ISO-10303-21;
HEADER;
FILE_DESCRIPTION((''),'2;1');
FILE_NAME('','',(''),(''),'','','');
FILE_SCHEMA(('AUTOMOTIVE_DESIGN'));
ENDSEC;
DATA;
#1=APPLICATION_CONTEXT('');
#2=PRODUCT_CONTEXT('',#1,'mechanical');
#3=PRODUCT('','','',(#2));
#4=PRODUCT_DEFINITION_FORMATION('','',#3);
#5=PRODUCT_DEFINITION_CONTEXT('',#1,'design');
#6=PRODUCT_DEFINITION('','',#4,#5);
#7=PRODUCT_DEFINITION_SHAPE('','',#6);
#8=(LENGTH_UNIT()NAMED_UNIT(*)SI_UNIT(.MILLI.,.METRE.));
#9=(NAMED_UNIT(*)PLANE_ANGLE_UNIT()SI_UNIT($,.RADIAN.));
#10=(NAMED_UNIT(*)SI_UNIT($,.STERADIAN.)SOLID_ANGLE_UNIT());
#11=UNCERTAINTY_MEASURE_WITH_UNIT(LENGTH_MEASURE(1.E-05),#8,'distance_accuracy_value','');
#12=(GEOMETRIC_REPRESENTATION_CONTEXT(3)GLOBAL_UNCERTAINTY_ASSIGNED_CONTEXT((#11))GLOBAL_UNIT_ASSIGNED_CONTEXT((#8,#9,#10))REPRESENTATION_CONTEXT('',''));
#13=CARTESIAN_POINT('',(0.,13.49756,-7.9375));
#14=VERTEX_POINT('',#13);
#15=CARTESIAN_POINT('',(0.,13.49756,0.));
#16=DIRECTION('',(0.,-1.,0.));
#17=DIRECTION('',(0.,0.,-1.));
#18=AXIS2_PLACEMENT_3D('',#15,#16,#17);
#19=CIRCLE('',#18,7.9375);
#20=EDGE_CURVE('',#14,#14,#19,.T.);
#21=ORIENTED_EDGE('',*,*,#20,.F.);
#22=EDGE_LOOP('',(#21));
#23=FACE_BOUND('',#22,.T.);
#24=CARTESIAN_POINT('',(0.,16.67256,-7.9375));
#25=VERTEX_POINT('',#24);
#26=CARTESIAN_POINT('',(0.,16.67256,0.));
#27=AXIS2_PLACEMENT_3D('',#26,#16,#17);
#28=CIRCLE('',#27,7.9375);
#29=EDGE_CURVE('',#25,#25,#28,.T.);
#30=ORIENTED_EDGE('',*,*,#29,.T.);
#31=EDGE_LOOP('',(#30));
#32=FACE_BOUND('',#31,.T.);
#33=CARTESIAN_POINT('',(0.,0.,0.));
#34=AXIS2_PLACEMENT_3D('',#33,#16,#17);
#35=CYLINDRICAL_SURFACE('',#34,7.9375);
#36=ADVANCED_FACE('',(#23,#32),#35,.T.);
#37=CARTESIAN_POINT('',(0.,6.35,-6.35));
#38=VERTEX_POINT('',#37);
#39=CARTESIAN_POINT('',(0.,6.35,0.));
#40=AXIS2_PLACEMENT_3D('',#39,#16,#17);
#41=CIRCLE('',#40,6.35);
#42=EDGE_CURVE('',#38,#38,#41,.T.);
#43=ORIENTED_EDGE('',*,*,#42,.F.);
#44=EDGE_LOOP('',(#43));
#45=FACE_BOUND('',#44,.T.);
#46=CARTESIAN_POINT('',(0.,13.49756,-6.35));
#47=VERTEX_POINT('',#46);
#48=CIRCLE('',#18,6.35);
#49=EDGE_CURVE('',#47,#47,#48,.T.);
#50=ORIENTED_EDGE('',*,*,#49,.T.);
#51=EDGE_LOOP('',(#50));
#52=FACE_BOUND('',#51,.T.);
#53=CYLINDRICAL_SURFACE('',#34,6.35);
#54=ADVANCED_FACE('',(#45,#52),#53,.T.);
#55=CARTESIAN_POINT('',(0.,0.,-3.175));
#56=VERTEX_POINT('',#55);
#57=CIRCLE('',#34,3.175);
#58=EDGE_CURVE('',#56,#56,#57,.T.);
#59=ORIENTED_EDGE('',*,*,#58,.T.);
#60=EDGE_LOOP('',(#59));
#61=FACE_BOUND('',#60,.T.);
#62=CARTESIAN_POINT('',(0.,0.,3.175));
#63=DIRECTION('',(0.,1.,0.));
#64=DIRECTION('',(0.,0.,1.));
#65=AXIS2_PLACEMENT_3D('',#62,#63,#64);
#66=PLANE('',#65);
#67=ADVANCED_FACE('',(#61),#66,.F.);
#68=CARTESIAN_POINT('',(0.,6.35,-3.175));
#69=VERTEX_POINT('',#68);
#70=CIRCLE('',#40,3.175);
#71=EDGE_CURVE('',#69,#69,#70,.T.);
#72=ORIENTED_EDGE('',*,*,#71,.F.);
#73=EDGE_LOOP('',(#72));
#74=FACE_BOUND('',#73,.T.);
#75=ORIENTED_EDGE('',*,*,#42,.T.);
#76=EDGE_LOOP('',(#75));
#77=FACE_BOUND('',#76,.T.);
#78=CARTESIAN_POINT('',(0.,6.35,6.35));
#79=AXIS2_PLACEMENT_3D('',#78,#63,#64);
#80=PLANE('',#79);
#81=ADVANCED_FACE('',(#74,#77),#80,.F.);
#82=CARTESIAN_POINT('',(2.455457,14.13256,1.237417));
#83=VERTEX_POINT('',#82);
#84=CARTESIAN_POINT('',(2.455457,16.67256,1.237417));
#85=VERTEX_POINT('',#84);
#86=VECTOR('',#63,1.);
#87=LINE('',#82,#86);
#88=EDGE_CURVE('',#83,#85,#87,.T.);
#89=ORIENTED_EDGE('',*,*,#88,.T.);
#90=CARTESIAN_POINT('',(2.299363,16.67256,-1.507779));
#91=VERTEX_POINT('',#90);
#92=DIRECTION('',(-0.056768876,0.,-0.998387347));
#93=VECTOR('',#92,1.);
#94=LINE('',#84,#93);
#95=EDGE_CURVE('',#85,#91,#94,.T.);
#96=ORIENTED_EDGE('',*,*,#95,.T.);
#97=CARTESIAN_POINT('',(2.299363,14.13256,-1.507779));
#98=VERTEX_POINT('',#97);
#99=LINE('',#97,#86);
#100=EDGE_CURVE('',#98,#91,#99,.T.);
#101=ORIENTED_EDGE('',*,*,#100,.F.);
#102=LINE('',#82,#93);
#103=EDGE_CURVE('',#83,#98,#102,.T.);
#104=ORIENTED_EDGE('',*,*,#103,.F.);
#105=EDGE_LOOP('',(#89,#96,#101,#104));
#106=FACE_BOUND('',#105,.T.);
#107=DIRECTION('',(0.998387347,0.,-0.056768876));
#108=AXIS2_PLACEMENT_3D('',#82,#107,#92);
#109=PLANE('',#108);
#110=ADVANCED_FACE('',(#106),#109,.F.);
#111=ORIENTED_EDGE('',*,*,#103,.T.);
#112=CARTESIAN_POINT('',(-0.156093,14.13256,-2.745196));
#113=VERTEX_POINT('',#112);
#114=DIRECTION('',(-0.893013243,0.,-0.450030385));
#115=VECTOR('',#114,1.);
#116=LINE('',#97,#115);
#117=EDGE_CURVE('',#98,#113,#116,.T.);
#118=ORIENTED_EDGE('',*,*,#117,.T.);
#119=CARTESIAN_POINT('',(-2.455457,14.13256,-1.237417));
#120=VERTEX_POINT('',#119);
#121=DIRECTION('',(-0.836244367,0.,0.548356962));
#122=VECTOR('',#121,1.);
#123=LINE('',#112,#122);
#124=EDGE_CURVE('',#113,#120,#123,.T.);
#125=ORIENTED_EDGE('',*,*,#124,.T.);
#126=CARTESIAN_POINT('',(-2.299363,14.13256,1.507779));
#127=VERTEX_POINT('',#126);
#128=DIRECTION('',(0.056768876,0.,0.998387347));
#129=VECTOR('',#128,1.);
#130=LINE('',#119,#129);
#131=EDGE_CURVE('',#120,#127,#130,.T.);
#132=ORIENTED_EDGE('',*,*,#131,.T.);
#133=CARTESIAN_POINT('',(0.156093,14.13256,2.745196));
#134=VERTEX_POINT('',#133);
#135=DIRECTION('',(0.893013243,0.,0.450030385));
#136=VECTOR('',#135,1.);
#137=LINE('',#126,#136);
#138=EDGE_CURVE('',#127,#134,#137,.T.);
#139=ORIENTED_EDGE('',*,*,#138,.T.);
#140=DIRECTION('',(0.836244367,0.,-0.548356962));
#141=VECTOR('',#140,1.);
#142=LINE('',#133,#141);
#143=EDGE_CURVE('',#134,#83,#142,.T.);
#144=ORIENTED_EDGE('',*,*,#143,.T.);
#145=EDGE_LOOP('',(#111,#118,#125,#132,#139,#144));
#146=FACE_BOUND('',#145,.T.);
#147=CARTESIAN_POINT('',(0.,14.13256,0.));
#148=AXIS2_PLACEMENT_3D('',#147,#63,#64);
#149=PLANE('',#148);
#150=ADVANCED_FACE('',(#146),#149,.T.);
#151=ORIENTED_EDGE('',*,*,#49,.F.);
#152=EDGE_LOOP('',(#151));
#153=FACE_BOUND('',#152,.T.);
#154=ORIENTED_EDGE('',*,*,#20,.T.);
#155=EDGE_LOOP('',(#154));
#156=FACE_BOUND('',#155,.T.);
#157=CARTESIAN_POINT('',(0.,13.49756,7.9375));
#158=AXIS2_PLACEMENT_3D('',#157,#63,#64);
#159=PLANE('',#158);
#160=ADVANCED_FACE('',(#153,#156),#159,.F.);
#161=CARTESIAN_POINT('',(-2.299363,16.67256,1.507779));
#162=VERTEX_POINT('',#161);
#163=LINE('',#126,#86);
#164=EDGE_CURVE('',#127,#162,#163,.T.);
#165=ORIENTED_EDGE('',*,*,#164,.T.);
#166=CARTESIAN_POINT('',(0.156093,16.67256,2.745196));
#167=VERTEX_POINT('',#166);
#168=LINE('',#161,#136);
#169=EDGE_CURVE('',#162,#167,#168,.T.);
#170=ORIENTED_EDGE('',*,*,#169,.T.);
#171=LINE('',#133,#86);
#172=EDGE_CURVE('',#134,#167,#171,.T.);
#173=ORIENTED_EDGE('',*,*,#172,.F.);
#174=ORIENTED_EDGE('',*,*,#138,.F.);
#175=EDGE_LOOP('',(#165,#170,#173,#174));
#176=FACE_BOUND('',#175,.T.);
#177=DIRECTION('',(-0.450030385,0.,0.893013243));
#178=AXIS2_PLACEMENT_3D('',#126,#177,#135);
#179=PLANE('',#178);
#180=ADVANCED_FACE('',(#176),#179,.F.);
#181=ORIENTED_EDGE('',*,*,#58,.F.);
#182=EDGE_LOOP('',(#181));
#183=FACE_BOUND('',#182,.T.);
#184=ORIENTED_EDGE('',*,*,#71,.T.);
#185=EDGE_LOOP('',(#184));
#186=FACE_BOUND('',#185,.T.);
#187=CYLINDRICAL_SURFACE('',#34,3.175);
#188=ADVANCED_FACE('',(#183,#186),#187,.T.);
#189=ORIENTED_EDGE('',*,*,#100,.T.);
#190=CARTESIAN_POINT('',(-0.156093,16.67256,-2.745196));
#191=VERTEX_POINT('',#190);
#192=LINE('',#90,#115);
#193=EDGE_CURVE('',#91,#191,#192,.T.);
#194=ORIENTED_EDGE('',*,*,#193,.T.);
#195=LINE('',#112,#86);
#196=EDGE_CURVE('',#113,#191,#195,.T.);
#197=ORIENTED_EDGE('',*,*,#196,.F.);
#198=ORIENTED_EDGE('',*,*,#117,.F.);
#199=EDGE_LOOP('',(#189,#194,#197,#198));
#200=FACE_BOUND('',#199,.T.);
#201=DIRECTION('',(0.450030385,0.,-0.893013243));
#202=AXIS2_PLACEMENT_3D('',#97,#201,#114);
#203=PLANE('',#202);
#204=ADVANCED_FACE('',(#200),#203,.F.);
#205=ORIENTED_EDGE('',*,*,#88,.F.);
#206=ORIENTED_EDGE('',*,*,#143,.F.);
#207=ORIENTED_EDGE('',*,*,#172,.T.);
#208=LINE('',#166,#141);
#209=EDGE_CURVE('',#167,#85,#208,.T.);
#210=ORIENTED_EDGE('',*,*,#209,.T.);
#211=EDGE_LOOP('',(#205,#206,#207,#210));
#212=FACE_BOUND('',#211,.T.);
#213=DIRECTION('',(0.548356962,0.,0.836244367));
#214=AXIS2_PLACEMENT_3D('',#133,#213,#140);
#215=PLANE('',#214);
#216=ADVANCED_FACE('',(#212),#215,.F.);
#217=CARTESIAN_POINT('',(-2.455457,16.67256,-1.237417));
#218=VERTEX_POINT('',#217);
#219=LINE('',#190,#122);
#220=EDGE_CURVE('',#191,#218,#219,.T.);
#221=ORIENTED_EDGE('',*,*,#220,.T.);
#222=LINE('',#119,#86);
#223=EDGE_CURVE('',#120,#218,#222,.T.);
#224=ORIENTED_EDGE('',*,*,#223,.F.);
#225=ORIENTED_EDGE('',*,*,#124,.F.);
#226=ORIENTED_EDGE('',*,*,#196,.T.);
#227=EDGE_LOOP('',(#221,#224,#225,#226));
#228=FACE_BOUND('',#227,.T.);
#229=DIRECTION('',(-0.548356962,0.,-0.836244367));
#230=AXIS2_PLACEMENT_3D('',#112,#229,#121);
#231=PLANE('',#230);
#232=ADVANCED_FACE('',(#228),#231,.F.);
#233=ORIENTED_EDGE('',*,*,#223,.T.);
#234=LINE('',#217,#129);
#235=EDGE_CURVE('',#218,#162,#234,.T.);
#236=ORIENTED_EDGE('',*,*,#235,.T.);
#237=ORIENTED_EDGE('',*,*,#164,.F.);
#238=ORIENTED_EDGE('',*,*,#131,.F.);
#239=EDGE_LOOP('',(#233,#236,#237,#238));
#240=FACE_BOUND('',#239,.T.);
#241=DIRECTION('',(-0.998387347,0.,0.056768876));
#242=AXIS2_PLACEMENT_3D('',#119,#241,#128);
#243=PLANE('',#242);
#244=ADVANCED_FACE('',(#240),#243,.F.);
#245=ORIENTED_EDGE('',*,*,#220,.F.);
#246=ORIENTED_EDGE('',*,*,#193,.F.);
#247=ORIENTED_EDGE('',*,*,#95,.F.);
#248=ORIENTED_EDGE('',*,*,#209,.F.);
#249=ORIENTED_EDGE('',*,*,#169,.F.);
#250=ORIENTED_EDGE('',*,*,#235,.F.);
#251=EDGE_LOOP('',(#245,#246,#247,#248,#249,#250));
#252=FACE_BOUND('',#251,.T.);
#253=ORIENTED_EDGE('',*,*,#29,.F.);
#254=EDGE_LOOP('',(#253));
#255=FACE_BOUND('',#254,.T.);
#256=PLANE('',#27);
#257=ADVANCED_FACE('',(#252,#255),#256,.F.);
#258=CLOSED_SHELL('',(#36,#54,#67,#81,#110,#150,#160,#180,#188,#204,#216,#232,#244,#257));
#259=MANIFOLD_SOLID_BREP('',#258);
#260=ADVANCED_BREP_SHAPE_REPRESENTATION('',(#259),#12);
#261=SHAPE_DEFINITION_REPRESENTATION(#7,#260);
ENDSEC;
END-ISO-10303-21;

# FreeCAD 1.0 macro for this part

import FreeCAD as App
import Part
import Sketcher

V = App.Vector
Q = App.Units.Quantity

doc = App.newDocument("Part")
body = doc.addObject("PartDesign::Body", "Body")

# Sketch on YZ plane
sketch1 = body.newObject("Sketcher::SketchObject", "Sketch")
sketch1.AttachmentSupport = (doc.getObject("YZ_Plane"), [""])
sketch1.MapMode = "FlatFace"
sketch1.addGeometry([
    Part.LineSegment(V(0, 0, 0), V(16.7, 0, 0)),  # 0
    Part.LineSegment(V(16.7, 0, 0), V(16.7, 7.9, 0)),  # 1
    Part.LineSegment(V(16.7, 7.9, 0), V(13.5, 7.9, 0)),  # 2
    Part.LineSegment(V(13.5, 7.9, 0), V(13.5, 6.3, 0)),  # 3
    Part.LineSegment(V(13.5, 6.3, 0), V(6.3, 6.3, 0)),  # 4
    Part.LineSegment(V(6.3, 6.3, 0), V(6.3, 3.2, 0)),  # 5
    Part.LineSegment(V(6.3, 3.2, 0), V(0, 3.2, 0)),  # 6
    Part.LineSegment(V(0, 3.2, 0), V(0, 0, 0)),  # 7
], False)
sketch1.addConstraint([
    Sketcher.Constraint("Coincident", 0, 2, 1, 1),
    Sketcher.Constraint("Coincident", 1, 2, 2, 1),
    Sketcher.Constraint("Coincident", 2, 2, 3, 1),
    Sketcher.Constraint("Coincident", 3, 2, 4, 1),
    Sketcher.Constraint("Coincident", 4, 2, 5, 1),
    Sketcher.Constraint("Coincident", 5, 2, 6, 1),
    Sketcher.Constraint("Coincident", 6, 2, 7, 1),
    Sketcher.Constraint("Coincident", 7, 2, 0, 1),
    Sketcher.Constraint("Horizontal", 0),
    Sketcher.Constraint("Vertical", 1),
    Sketcher.Constraint("Horizontal", 2),
    Sketcher.Constraint("Vertical", 3),
    Sketcher.Constraint("Horizontal", 4),
    Sketcher.Constraint("Vertical", 5),
    Sketcher.Constraint("Horizontal", 6),
    Sketcher.Constraint("Vertical", 7),
    Sketcher.Constraint("Coincident", 7, 2, -1, 1),
    Sketcher.Constraint("Equal", 2, 5),
    Sketcher.Constraint("Equal", 5, 7),
    Sketcher.Constraint("DistanceX", 6, 2, 6, 1, Q("0.25 in")),
    Sketcher.Constraint("DistanceX", 2, 2, 2, 1, Q("0.125 in")),
    Sketcher.Constraint("DistanceY", 1, 1, 1, 2, Q("0.3125 in")),
    Sketcher.Constraint("DistanceX", 0, 1, 0, 2, Q("0.6564 in")),
])
revolution = body.newObject("PartDesign::Revolution", "Revolution")
revolution.Profile = sketch1
revolution.ReferenceAxis = (sketch1, ["H_Axis"])
revolution.Angle = 360

# Sketch on XZ plane
sketch2 = body.newObject("Sketcher::SketchObject", "Sketch001")
sketch2.AttachmentSupport = (doc.getObject("XZ_Plane"), [""])
sketch2.MapMode = "FlatFace"
sketch2.AttachmentOffset = App.Placement(V(0, 0, -0.6564 * 25.4), App.Rotation())
sketch2.addGeometry([
    Part.LineSegment(V(-2.3, 1.5, 0), V(0.2, 2.7, 0)),  # 0
    Part.LineSegment(V(0.2, 2.7, 0), V(2.5, 1.2, 0)),  # 1
    Part.LineSegment(V(2.5, 1.2, 0), V(2.3, -1.5, 0)),  # 2
    Part.LineSegment(V(2.3, -1.5, 0), V(-0.2, -2.7, 0)),  # 3
    Part.LineSegment(V(-0.2, -2.7, 0), V(-2.5, -1.2, 0)),  # 4
    Part.LineSegment(V(-2.5, -1.2, 0), V(-2.3, 1.5, 0)),  # 5
], False)
sketch2.addConstraint([
    Sketcher.Constraint("Coincident", 0, 2, 1, 1),
    Sketcher.Constraint("Coincident", 1, 2, 2, 1),
    Sketcher.Constraint("Coincident", 2, 2, 3, 1),
    Sketcher.Constraint("Coincident", 3, 2, 4, 1),
    Sketcher.Constraint("Coincident", 4, 2, 5, 1),
    Sketcher.Constraint("Coincident", 5, 2, 0, 1),
    Sketcher.Constraint("Symmetric", 0, 2, 3, 2, -1, 1),
    Sketcher.Constraint("Symmetric", 1, 2, 4, 2, -1, 1),
    Sketcher.Constraint("Symmetric", 2, 2, 5, 2, -1, 1),
    Sketcher.Constraint("Equal", 0, 1),
    Sketcher.Constraint("Equal", 1, 2),
    Sketcher.Constraint("Distance", 0, Q("2.749631 mm")),
    Sketcher.Constraint("DistanceY", 2, 2, -1, 1, Q("1.507779 mm")),
    Sketcher.Constraint("DistanceY", 1, 2, 0, 2, Q("1.507779 mm")),
    Sketcher.Constraint("DistanceX", 0, 2, 2, 2, Q("2.14327 mm")),
])
pocket1 = body.newObject("PartDesign::Pocket", "Pocket")
pocket1.Profile = sketch2
pocket1.Length = Q("0.1 in")
pocket1.Reversed = True

doc.recompute()
